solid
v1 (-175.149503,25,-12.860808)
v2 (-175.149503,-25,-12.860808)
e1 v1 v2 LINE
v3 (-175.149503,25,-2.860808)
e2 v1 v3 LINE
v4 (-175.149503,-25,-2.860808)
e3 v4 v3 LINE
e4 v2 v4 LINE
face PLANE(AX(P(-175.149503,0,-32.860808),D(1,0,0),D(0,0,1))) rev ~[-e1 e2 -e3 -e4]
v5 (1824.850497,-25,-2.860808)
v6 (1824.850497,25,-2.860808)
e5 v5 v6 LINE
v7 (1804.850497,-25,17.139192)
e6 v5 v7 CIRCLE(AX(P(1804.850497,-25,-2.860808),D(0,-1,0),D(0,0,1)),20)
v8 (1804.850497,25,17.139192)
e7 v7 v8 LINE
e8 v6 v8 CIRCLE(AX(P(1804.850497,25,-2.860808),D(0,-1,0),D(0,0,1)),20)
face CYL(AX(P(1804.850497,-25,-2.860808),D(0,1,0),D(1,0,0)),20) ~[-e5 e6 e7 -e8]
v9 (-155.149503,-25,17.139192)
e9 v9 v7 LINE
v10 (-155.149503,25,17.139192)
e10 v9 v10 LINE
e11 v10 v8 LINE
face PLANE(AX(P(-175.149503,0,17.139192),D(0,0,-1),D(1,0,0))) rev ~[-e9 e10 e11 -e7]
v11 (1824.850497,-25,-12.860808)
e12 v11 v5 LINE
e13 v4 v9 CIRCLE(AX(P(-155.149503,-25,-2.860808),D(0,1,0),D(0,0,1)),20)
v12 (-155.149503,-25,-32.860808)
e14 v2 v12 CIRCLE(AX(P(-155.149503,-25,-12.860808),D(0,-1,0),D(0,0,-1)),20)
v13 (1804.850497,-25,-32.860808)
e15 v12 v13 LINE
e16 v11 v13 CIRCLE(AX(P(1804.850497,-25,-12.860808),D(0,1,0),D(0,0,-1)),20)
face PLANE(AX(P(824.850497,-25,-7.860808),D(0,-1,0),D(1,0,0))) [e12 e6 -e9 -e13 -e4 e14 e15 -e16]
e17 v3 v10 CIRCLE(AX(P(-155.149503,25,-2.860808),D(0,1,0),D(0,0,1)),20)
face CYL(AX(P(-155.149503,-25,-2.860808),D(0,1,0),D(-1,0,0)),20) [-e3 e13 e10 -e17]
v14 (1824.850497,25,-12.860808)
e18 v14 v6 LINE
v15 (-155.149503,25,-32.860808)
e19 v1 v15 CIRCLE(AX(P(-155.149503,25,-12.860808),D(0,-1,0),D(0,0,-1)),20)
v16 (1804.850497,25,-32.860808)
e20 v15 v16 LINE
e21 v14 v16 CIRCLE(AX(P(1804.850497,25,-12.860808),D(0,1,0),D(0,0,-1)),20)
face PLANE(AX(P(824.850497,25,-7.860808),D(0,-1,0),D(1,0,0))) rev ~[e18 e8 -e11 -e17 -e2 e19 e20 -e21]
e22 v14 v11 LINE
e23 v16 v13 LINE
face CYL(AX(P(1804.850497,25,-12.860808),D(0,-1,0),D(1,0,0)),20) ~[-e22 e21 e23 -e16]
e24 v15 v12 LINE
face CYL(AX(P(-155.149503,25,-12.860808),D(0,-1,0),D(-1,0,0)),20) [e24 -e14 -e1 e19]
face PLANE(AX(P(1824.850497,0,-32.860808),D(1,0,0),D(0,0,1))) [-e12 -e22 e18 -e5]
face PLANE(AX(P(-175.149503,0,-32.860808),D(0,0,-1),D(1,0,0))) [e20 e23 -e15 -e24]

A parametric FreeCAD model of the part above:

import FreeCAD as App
import Part
import Sketcher

V = App.Vector


def edges_at(feature, points):
    """Names of the edges that pass closest to the given points."""
    edges = feature.Shape.Edges
    near = lambda p: min(range(len(edges)), key=lambda i: edges[i].distToShape(Part.Vertex(*p))[0])
    return sorted({f"Edge{near(p) + 1}" for p in points})

doc = App.newDocument("Part")
body = doc.addObject("PartDesign::Body", "Body")

sketch1 = body.newObject("Sketcher::SketchObject", "Sketch")
sketch1.AttachmentSupport = (doc.getObject("XZ_Plane"), [""])
sketch1.MapMode = "FlatFace"
sketch1.addGeometry(Part.LineSegment(V(-175, 17, 0), V(-175, -33, 0)), False)
sketch1.addGeometry(Part.LineSegment(V(-175, -33, 0), V(1825, -33, 0)), False)
sketch1.addGeometry(Part.LineSegment(V(1825, -33, 0), V(1825, 17, 0)), False)
sketch1.addGeometry(Part.LineSegment(V(1825, 17, 0), V(-175, 17, 0)), False)
sketch1.addConstraint(Sketcher.Constraint("Coincident", 0, 2, 1, 1))
sketch1.addConstraint(Sketcher.Constraint("Coincident", 1, 2, 2, 1))
sketch1.addConstraint(Sketcher.Constraint("Coincident", 2, 2, 3, 1))
sketch1.addConstraint(Sketcher.Constraint("Coincident", 3, 2, 0, 1))
sketch1.addConstraint(Sketcher.Constraint("Vertical", 0))
sketch1.addConstraint(Sketcher.Constraint("Horizontal", 1))
sketch1.addConstraint(Sketcher.Constraint("Vertical", 2))
sketch1.addConstraint(Sketcher.Constraint("Horizontal", 3))
sketch1.addConstraint(Sketcher.Constraint("DistanceX", 1, 1, 1, 2, 2000.0))
sketch1.addConstraint(Sketcher.Constraint("DistanceY", 0, 2, 0, 1, 50.0))
sketch1.addConstraint(Sketcher.Constraint("DistanceX", 0, 2, -1, 1, 175.149503))
sketch1.addConstraint(Sketcher.Constraint("DistanceY", 0, 2, -1, 1, 32.860808))
pad1 = body.newObject("PartDesign::Pad", "Pad")
pad1.Profile = sketch1
pad1.Length = 50
pad1.Midplane = True
doc.recompute()

fillet = body.newObject("PartDesign::Fillet", "Fillet")
fillet.Base = (pad1, edges_at(pad1, [
    (1824.85, 0, 17.139),
    (1824.85, 0, -32.861),
    (-175.15, 0, 17.139),
    (-175.15, 0, -32.861),
]))
fillet.Radius = 20

doc.recompute()
